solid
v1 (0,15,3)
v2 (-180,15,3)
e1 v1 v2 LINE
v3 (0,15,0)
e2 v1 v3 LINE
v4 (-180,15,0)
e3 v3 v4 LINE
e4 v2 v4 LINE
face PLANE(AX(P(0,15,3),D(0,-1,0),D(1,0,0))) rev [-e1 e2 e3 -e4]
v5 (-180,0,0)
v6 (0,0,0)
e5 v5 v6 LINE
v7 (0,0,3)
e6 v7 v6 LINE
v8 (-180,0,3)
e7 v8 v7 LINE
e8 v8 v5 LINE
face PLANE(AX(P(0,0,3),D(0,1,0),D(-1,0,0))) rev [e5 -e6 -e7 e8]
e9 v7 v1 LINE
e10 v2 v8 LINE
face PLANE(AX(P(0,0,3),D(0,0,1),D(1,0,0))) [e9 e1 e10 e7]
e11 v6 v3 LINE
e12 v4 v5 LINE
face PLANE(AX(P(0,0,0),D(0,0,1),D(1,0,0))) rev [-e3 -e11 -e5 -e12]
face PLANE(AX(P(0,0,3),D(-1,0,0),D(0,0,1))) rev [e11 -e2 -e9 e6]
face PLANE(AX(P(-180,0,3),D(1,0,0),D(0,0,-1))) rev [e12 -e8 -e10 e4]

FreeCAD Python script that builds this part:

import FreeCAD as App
import Part
import Sketcher
Q = App.Units.Quantity

doc = App.newDocument("Part")
params = doc.addObject("Spreadsheet::Sheet", "Params")
for row, (alias, value) in enumerate([
    ("sketch1_width", "180 mm"),
    ("sketch1_height", "15 mm"),
    ("pad1_length", "3 mm"),
], start=1):
    params.set(f"A{row}", alias)
    params.set(f"B{row}", "=" + value)
    params.setAlias(f"B{row}", alias)

body = doc.addObject("PartDesign::Body", "Body")

sketch1 = body.newObject("Sketcher::SketchObject", "Sketch")
sketch1.AttachmentSupport = (doc.getObject("XY_Plane"), [""])
sketch1.MapMode = "FlatFace"
sketch1.addGeometry([
    Part.LineSegment(App.Vector(-180, 15, 0), App.Vector(-180, 0, 0)),
    Part.LineSegment(App.Vector(-180, 0, 0), App.Vector(0, 0, 0)),
    Part.LineSegment(App.Vector(0, 0, 0), App.Vector(0, 15, 0)),
    Part.LineSegment(App.Vector(0, 15, 0), App.Vector(-180, 15, 0)),
], False)
sketch1.addConstraint([
    Sketcher.Constraint("Coincident", 0, 2, 1, 1),
    Sketcher.Constraint("Coincident", 1, 2, 2, 1),
    Sketcher.Constraint("Coincident", 2, 2, 3, 1),
    Sketcher.Constraint("Coincident", 3, 2, 0, 1),
    Sketcher.Constraint("Vertical", 0),
    Sketcher.Constraint("Horizontal", 1),
    Sketcher.Constraint("Vertical", 2),
    Sketcher.Constraint("Horizontal", 3),
    Sketcher.Constraint("Coincident", 1, 2, -1, 1),
    Sketcher.Constraint("DistanceX", 1, 1, 1, 2, Q("180 mm")),
    Sketcher.Constraint("DistanceY", 0, 2, 0, 1, Q("15 mm")),
])
sketch1.setExpression("Constraints[9]", "Params.sketch1_width")
sketch1.setExpression("Constraints[10]", "Params.sketch1_height")
pad1 = body.newObject("PartDesign::Pad", "Pad")
pad1.Profile = sketch1
pad1.setExpression("Length", "Params.pad1_length")

doc.recompute()
